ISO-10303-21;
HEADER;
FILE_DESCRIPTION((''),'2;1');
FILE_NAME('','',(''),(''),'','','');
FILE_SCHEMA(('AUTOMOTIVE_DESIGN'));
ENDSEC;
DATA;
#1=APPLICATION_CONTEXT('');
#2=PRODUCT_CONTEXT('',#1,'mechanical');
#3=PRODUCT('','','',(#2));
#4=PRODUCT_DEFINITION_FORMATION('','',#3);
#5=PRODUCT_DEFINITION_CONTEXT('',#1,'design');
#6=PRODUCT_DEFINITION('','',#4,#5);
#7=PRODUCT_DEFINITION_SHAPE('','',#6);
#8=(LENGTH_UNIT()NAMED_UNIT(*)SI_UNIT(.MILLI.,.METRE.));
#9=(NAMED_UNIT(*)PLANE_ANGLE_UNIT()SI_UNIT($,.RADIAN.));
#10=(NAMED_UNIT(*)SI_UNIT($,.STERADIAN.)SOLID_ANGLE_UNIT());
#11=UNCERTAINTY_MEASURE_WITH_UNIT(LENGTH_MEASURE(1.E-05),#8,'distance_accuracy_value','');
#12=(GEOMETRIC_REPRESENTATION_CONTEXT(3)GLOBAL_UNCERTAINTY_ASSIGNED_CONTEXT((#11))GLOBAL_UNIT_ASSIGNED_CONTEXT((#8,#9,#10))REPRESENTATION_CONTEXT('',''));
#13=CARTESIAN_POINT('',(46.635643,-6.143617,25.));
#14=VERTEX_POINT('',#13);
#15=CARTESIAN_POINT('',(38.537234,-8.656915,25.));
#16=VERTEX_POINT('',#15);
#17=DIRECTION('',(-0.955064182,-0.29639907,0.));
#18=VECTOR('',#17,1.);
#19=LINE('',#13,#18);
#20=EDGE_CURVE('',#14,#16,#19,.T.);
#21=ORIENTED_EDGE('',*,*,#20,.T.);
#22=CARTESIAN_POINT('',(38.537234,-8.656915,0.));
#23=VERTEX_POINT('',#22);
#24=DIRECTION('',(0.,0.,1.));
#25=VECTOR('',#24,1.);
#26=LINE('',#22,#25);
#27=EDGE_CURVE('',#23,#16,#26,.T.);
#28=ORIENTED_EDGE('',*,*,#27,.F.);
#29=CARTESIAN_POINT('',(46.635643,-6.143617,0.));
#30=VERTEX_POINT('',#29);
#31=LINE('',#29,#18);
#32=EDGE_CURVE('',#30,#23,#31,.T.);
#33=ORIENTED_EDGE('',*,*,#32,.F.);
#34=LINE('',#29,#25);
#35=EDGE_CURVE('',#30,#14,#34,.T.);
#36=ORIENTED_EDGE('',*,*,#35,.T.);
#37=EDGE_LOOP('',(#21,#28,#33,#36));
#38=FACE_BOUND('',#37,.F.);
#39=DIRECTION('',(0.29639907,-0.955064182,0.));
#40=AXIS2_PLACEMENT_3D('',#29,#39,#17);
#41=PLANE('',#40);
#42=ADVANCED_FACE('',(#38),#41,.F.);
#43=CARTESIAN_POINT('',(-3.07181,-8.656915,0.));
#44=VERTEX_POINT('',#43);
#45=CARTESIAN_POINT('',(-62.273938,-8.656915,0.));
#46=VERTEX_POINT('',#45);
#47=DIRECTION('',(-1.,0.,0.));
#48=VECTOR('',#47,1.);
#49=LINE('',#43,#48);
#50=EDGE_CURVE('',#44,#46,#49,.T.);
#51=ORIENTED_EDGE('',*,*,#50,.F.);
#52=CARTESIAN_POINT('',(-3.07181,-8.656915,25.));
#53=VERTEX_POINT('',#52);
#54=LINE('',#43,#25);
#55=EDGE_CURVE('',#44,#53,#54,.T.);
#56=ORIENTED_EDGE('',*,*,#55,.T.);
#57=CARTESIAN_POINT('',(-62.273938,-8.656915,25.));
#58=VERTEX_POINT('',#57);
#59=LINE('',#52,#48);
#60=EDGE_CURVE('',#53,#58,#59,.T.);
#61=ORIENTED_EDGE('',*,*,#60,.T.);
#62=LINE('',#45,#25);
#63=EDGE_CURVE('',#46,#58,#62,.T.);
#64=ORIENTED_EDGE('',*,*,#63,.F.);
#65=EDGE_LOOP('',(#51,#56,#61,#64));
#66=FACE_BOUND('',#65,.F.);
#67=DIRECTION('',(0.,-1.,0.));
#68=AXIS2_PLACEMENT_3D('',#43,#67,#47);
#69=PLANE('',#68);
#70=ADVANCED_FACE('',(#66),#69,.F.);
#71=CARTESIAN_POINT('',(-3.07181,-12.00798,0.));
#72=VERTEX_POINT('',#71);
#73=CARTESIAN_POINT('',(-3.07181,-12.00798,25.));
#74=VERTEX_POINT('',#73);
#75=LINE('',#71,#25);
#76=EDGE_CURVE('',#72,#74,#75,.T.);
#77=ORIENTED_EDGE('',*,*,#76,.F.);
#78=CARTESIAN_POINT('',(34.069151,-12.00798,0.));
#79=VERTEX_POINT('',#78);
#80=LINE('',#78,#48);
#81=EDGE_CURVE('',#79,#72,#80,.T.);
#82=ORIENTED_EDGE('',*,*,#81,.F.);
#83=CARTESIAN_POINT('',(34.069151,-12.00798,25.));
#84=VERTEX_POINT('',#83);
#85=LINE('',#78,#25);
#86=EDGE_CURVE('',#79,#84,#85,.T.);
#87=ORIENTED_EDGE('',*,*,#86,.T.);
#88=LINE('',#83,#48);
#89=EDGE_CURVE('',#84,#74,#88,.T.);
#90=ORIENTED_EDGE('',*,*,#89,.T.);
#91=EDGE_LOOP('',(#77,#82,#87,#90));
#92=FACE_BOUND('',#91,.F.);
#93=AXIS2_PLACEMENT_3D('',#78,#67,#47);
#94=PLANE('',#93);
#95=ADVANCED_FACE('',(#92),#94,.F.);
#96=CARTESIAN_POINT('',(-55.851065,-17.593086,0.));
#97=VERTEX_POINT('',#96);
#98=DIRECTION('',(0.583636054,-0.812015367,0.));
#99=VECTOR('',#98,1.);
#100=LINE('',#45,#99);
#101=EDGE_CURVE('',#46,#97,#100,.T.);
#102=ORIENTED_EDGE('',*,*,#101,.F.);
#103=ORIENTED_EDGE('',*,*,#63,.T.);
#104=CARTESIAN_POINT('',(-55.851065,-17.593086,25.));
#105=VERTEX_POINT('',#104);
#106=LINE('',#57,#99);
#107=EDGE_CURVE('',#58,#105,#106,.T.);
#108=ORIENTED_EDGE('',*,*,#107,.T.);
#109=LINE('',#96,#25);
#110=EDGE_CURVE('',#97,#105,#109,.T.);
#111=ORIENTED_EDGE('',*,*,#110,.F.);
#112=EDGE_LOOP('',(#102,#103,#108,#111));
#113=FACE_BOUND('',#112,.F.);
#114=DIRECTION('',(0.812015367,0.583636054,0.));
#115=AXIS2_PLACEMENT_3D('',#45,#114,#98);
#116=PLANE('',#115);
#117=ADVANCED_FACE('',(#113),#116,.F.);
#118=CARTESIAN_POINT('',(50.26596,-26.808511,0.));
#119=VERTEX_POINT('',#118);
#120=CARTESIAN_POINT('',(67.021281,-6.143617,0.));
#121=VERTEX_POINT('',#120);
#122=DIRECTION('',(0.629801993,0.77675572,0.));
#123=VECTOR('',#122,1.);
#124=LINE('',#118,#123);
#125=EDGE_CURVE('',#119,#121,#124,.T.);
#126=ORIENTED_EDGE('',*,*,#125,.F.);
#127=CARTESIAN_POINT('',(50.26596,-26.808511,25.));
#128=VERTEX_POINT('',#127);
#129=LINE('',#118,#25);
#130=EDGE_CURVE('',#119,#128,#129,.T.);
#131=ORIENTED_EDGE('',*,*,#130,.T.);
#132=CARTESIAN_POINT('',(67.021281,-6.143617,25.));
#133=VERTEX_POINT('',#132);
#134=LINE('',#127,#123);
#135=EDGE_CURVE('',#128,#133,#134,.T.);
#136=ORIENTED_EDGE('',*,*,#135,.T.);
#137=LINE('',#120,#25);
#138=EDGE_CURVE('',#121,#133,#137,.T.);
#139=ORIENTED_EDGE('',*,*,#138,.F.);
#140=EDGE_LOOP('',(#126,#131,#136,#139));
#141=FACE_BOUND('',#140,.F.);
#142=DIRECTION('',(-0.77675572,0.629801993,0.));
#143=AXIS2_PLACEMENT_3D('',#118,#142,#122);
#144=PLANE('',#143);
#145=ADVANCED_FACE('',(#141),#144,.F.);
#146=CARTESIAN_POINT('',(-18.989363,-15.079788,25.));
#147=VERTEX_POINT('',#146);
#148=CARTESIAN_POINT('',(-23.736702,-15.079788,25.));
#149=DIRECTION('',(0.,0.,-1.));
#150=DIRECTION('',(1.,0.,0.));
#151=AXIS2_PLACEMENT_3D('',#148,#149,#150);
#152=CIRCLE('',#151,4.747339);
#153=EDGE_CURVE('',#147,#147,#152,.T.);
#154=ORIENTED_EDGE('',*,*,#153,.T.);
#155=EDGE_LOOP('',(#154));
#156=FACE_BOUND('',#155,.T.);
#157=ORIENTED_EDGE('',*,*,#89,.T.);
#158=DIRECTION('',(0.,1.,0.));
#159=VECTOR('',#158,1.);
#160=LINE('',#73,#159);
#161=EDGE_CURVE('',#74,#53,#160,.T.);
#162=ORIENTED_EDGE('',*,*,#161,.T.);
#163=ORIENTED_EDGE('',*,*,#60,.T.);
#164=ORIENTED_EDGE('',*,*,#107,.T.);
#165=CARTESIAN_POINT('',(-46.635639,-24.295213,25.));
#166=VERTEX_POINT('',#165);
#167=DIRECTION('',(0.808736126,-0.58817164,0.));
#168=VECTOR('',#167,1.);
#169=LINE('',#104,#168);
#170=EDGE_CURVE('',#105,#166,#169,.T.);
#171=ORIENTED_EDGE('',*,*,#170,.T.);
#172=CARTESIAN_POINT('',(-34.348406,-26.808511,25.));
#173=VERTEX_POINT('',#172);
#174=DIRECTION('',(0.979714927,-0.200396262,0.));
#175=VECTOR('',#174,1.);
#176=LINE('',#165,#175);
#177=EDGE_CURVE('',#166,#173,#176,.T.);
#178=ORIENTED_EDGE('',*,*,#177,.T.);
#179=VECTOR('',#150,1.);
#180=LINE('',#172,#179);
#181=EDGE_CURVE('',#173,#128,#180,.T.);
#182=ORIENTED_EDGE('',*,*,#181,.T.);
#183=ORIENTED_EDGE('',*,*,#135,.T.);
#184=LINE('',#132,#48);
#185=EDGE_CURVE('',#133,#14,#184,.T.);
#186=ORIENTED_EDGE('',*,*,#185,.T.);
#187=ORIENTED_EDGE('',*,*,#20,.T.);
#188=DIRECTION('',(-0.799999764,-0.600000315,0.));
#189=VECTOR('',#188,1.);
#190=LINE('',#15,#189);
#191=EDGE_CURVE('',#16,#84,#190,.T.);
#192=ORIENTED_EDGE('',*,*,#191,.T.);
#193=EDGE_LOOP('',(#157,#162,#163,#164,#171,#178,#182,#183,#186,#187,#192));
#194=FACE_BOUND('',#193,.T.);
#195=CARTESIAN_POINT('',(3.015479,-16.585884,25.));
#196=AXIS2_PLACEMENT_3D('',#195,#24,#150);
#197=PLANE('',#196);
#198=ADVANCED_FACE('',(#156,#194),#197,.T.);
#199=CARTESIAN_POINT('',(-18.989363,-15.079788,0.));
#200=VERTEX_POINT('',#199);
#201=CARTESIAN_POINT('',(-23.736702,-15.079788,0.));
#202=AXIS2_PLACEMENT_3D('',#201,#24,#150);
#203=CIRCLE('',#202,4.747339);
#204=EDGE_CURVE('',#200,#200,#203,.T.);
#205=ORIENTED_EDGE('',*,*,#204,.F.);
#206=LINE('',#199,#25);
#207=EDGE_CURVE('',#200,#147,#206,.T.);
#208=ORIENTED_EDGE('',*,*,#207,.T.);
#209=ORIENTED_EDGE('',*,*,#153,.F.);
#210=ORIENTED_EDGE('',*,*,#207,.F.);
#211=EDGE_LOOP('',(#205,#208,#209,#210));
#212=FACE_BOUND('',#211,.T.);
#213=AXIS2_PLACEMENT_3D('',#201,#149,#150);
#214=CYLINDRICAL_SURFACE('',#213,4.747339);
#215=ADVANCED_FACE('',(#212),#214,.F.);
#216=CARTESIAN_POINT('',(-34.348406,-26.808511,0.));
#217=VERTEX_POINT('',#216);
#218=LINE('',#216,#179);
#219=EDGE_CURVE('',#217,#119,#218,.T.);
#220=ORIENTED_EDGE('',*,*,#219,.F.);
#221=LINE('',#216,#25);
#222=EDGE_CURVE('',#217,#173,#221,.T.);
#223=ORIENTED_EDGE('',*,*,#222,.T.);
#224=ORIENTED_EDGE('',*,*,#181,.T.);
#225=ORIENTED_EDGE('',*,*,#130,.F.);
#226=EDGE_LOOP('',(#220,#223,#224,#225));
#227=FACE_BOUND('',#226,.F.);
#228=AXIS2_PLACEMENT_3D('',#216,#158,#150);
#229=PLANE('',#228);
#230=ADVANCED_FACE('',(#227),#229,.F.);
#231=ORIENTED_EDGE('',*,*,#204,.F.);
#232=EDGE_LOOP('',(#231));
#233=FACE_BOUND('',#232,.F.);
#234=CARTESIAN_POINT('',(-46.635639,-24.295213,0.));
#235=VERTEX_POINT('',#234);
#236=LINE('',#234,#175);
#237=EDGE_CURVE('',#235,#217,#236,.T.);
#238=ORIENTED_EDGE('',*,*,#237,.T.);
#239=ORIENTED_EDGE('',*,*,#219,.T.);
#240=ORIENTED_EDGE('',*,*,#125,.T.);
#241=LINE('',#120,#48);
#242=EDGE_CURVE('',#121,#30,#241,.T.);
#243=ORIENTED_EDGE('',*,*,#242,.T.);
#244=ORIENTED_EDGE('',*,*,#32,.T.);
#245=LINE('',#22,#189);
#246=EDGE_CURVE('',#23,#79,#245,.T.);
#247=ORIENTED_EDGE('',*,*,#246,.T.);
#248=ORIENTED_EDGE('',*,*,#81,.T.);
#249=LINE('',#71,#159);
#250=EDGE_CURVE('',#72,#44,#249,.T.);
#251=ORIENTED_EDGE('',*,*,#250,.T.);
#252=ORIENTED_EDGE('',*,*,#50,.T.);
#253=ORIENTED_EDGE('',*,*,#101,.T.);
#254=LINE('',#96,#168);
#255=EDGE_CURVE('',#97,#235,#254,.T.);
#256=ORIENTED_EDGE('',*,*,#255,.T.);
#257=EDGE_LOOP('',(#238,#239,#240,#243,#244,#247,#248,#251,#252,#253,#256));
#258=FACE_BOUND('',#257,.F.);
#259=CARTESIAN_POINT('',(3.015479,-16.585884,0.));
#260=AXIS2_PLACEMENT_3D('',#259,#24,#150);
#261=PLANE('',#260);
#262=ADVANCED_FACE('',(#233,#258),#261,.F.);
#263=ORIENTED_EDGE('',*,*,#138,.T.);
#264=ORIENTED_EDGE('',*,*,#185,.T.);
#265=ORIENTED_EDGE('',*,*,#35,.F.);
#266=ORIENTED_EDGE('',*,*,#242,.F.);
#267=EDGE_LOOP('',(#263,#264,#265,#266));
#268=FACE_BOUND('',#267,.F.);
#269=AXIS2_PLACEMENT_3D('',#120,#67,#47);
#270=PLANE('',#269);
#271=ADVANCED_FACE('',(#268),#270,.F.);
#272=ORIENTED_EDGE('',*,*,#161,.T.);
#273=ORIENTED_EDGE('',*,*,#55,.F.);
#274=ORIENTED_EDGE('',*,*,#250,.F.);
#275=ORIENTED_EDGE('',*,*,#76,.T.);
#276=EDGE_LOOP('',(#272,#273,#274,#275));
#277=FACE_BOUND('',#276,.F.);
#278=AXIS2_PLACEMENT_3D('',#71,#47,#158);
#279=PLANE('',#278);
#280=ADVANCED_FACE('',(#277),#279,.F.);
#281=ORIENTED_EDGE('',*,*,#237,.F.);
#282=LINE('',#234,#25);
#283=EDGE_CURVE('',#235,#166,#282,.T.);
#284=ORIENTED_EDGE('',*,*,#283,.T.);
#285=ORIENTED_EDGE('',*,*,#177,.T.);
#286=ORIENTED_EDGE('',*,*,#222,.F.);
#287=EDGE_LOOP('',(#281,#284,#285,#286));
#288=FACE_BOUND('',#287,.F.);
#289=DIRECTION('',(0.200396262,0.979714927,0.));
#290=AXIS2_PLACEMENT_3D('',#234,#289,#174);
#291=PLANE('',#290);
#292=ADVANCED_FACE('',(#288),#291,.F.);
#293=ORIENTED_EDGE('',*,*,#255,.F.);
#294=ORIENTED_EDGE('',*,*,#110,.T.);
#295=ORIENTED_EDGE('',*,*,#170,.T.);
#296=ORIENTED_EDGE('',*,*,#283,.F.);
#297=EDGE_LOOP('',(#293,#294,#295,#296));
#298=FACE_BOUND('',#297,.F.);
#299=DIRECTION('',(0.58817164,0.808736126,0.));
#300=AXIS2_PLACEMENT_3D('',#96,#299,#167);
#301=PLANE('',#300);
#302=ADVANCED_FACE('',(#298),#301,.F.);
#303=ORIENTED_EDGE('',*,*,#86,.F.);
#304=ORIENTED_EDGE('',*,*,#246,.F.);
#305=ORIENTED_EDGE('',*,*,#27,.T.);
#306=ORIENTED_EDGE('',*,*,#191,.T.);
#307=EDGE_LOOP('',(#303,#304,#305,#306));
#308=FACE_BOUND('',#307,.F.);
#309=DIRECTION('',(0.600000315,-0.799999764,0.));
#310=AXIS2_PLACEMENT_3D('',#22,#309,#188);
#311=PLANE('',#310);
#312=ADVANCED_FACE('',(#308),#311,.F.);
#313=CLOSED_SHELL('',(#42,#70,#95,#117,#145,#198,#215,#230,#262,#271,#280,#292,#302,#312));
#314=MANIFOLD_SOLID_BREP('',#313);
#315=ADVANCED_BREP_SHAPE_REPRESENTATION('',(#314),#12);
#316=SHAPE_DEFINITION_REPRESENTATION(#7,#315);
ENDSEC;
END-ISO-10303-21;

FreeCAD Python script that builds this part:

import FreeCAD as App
import Part
import Sketcher

V = App.Vector


def add_polygon(sketch, points):
    """Adds a closed chain of lines whose ends are joined by coincident constraints."""
    first, n = sketch.GeometryCount, len(points)
    for a, b in zip(points, points[1:] + points[:1]):
        sketch.addGeometry(Part.LineSegment(App.Vector(*a, 0), App.Vector(*b, 0)), False)
    for i in range(n):
        sketch.addConstraint(Sketcher.Constraint("Coincident", first + i, 2, first + (i + 1) % n, 1))

doc = App.newDocument("Part")
body = doc.addObject("PartDesign::Body", "Body")

sketch1 = doc.addObject("Sketcher::SketchObject", "Sketch")
body.addObject(sketch1)
sketch1.AttachmentSupport = (doc.XY_Plane, [""])
sketch1.MapMode = "FlatFace"
add_polygon(sketch1, [(-34.3, -26.8), (50.3, -26.8), (67, -6.1), (46.6, -6.1), (38.5, -8.7), (34.1, -12), (-3.1, -12), (-3.1, -8.7), (-62.3, -8.7), (-55.9, -17.6), (-46.6, -24.3)])
sketch1.addConstraint(Sketcher.Constraint("Horizontal", 0))
sketch1.addConstraint(Sketcher.Constraint("Horizontal", 2))
sketch1.addConstraint(Sketcher.Constraint("Horizontal", 5))
sketch1.addConstraint(Sketcher.Constraint("Vertical", 6))
sketch1.addConstraint(Sketcher.Constraint("Horizontal", 7))
sketch1.addConstraint(Sketcher.Constraint("Horizontal", 3, 2, 6, 2))
sketch1.addConstraint(Sketcher.Constraint("DistanceX", 2, 2, 2, 1, 20.385638))
sketch1.addConstraint(Sketcher.Constraint("DistanceX", 5, 2, 5, 1, 37.140961))
sketch1.addConstraint(Sketcher.Constraint("DistanceX", 7, 2, 7, 1, 59.202128))
sketch1.addConstraint(Sketcher.Constraint("DistanceX", 8, 2, 3, 2, 94.388299))
sketch1.addConstraint(Sketcher.Constraint("DistanceX", 7, 2, 9, 2, 15.638299))
sketch1.addConstraint(Sketcher.Constraint("DistanceY", 9, 2, 7, 2, 15.638298))
sketch1.addConstraint(Sketcher.Constraint("Distance", 1, 26.604109))
sketch1.addConstraint(Sketcher.Constraint("Distance", 3, 8.47944))
sketch1.addConstraint(Sketcher.Constraint("Distance", 8, 11.004928))
sketch1.addConstraint(Sketcher.Constraint("Distance", 9, 11.394849))
sketch1.addConstraint(Sketcher.Constraint("Distance", 10, 12.541641))
sketch1.addConstraint(Sketcher.Constraint("DistanceX", 0, 1, 0, 2, 84.614366))
sketch1.addConstraint(Sketcher.Constraint("DistanceY", 6, 1, 6, 2, 3.351065))
sketch1.addConstraint(Sketcher.Constraint("DistanceX", -1, 1, 0, 2, 50.26596))
sketch1.addConstraint(Sketcher.Constraint("DistanceY", 0, 2, -1, 1, 26.808511))
sketch1.addConstraint(Sketcher.Constraint("DistanceX", -1, 1, 1, 2, 67.021281))
pad1 = doc.addObject("PartDesign::Pad", "Pad")
body.addObject(pad1)
pad1.Profile = sketch1
pad1.Length = 25

sketch2 = doc.addObject("Sketcher::SketchObject", "Sketch001")
body.addObject(sketch2)
sketch2.AttachmentSupport = (doc.XY_Plane, [""])
sketch2.MapMode = "FlatFace"
sketch2.addGeometry(Part.Circle(V(-23.7, -15.1, 0), V(0, 0, 1), 4.7), False)
sketch2.addConstraint(Sketcher.Constraint("Diameter", 0, 9.494678))
sketch2.addConstraint(Sketcher.Constraint("DistanceY", 0, 3, -1, 1, 15.079788))
sketch2.addConstraint(Sketcher.Constraint("DistanceX", 0, 3, -1, 1, 23.736702))
pocket1 = doc.addObject("PartDesign::Pocket", "Pocket")
body.addObject(pocket1)
pocket1.Profile = sketch2
pocket1.Type = "ThroughAll"
pocket1.Reversed = True

doc.recompute()
